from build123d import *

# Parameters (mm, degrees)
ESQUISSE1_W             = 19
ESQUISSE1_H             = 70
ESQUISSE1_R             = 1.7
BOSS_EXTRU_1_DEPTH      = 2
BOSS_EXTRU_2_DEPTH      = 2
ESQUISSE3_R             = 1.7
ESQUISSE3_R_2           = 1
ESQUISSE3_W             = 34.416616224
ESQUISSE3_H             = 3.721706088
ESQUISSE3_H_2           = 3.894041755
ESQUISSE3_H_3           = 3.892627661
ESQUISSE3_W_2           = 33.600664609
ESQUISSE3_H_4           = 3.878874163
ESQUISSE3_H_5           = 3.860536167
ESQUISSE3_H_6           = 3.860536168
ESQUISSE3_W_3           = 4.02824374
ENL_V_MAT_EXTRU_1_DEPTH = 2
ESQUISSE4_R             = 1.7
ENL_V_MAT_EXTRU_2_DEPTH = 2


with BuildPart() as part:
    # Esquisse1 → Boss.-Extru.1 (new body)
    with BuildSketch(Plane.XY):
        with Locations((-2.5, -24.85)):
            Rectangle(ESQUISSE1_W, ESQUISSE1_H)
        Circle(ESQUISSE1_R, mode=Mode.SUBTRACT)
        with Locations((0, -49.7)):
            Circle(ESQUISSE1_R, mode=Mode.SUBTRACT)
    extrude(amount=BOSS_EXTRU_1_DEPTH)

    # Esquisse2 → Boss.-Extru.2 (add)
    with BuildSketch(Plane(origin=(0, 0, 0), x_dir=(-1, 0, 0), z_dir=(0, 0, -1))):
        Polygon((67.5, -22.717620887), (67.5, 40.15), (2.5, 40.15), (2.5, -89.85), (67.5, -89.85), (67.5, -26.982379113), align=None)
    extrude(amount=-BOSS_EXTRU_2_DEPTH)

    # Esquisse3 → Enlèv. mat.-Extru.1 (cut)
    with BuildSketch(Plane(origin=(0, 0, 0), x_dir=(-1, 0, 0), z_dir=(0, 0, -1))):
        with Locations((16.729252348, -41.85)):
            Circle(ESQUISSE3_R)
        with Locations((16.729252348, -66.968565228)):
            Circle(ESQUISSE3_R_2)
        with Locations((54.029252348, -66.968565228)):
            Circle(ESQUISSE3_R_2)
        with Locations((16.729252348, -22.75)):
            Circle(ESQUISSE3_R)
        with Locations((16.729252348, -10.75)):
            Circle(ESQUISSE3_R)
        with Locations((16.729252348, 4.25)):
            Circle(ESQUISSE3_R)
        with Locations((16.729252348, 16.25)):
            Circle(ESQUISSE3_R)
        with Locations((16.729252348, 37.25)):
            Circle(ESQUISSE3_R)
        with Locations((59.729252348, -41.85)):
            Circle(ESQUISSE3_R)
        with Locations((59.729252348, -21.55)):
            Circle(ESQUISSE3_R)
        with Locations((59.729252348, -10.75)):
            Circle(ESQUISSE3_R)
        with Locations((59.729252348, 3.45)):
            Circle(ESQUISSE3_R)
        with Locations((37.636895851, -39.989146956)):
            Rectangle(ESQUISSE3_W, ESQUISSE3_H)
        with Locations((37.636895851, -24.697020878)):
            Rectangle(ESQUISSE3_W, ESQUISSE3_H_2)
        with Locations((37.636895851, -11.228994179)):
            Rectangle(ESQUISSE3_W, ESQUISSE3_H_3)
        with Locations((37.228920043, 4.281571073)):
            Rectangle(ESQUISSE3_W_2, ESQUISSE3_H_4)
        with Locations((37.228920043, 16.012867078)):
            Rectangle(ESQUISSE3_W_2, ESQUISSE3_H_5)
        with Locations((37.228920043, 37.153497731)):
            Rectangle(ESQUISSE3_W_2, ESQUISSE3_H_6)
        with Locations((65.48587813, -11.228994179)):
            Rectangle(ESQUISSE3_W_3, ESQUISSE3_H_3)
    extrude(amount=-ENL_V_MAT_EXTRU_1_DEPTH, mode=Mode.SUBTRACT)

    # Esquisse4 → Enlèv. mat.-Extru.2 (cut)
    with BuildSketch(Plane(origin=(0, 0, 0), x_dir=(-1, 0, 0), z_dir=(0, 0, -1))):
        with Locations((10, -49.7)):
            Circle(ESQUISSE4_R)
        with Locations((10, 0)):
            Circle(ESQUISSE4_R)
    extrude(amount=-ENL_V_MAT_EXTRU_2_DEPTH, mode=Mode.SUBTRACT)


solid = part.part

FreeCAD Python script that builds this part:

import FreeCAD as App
import Part
import Sketcher

V = App.Vector

doc = App.newDocument("Part")
body = doc.addObject("PartDesign::Body", "Body")

sketch1 = body.newObject("Sketcher::SketchObject", "Sketch")
sketch1.AttachmentSupport = (doc.getObject("XY_Plane"), [""])
sketch1.MapMode = "FlatFace"
sketch1.addGeometry([
    Part.LineSegment(V(-12, 10.2, 0), V(-12, -59.9, 0)),
    Part.LineSegment(V(-12, -59.9, 0), V(7, -59.9, 0)),
    Part.LineSegment(V(7, -59.9, 0), V(7, 10.2, 0)),
    Part.LineSegment(V(7, 10.2, 0), V(-12, 10.2, 0)),
    Part.Circle(V(0, -49.7, 0), V(0, 0, 1), 1.7),
    Part.Circle(V(0, 0, 0), V(0, 0, 1), 1.7),
], False)
sketch1.addConstraint([
    Sketcher.Constraint("Coincident", 0, 2, 1, 1),
    Sketcher.Constraint("Coincident", 1, 2, 2, 1),
    Sketcher.Constraint("Coincident", 2, 2, 3, 1),
    Sketcher.Constraint("Coincident", 3, 2, 0, 1),
    Sketcher.Constraint("Vertical", 0),
    Sketcher.Constraint("Horizontal", 1),
    Sketcher.Constraint("Vertical", 2),
    Sketcher.Constraint("Horizontal", 3),
    Sketcher.Constraint("Coincident", 5, 3, -1, 1),
    Sketcher.Constraint("Equal", 4, 5),
    Sketcher.Constraint("PointOnObject", 4, 3, -2),
    Sketcher.Constraint("Diameter", 4, 3.4),
    Sketcher.Constraint("DistanceX", 1, 1, 1, 2, 19.0),
    Sketcher.Constraint("DistanceY", 0, 2, 0, 1, 70.0),
    Sketcher.Constraint("DistanceX", 0, 2, -1, 1, 12.0),
    Sketcher.Constraint("DistanceY", 4, 3, -1, 1, 49.7),
    Sketcher.Constraint("DistanceY", 0, 2, -1, 1, 59.85),
])
pad1 = body.newObject("PartDesign::Pad", "Pad")
pad1.Profile = sketch1
pad1.Length = 2

sketch2 = body.newObject("Sketcher::SketchObject", "Sketch001")
sketch2.AttachmentSupport = (doc.getObject("XY_Plane"), [""])
sketch2.MapMode = "FlatFace"
sketch2.addGeometry([
    Part.LineSegment(V(-68, 40, 0), V(-2, 40, 0)),
    Part.LineSegment(V(-2, 40, 0), V(-2, -90, 0)),
    Part.LineSegment(V(-2, -90, 0), V(-68, -90, 0)),
    Part.LineSegment(V(-68, -90, 0), V(-68, 40, 0)),
], False)
sketch2.addConstraint([
    Sketcher.Constraint("Coincident", 0, 2, 1, 1),
    Sketcher.Constraint("Coincident", 1, 2, 2, 1),
    Sketcher.Constraint("Coincident", 2, 2, 3, 1),
    Sketcher.Constraint("Coincident", 3, 2, 0, 1),
    Sketcher.Constraint("Horizontal", 0),
    Sketcher.Constraint("Vertical", 1),
    Sketcher.Constraint("Horizontal", 2),
    Sketcher.Constraint("Vertical", 3),
    Sketcher.Constraint("DistanceX", 0, 1, 0, 2, 65.0),
    Sketcher.Constraint("DistanceY", 1, 2, 1, 1, 130.0),
    Sketcher.Constraint("DistanceX", 0, 2, -1, 1, 2.5),
    Sketcher.Constraint("DistanceY", -1, 1, 0, 2, 40.15),
])
pad2 = body.newObject("PartDesign::Pad", "Pad001")
pad2.Profile = sketch2
pad2.Length = 2

sketch3 = body.newObject("Sketcher::SketchObject", "Sketch002")
sketch3.AttachmentSupport = (doc.getObject("XY_Plane"), [""])
sketch3.MapMode = "FlatFace"
sketch3.addGeometry([
    Part.Circle(V(-16.7, -41.9, 0), V(0, 0, 1), 1.7),
    Part.Circle(V(-16.7, -67, 0), V(0, 0, 1), 1),
    Part.Circle(V(-54, -67, 0), V(0, 0, 1), 1),
    Part.Circle(V(-16.7, -22.8, 0), V(0, 0, 1), 1.7),
    Part.Circle(V(-16.7, -10.8, 0), V(0, 0, 1), 1.7),
    Part.Circle(V(-16.7, 4.2, 0), V(0, 0, 1), 1.7),
    Part.Circle(V(-16.7, 16.2, 0), V(0, 0, 1), 1.7),
    Part.Circle(V(-16.7, 37.2, 0), V(0, 0, 1), 1.7),
    Part.Circle(V(-59.7, -41.9, 0), V(0, 0, 1), 1.7),
    Part.Circle(V(-59.7, -21.6, 0), V(0, 0, 1), 1.7),
    Part.Circle(V(-59.7, -10.8, 0), V(0, 0, 1), 1.7),
    Part.Circle(V(-59.7, 3.5, 0), V(0, 0, 1), 1.7),
    Part.LineSegment(V(-20.4, -38.1, 0), V(-20.4, -41.9, 0)),
    Part.LineSegment(V(-20.4, -41.9, 0), V(-54.8, -41.9, 0)),
    Part.LineSegment(V(-54.8, -41.9, 0), V(-54.8, -38.1, 0)),
    Part.LineSegment(V(-54.8, -38.1, 0), V(-20.4, -38.1, 0)),
    Part.LineSegment(V(-20.4, -22.8, 0), V(-20.4, -26.6, 0)),
    Part.LineSegment(V(-20.4, -26.6, 0), V(-54.8, -26.6, 0)),
    Part.LineSegment(V(-54.8, -26.6, 0), V(-54.8, -22.8, 0)),
    Part.LineSegment(V(-54.8, -22.8, 0), V(-20.4, -22.8, 0)),
    Part.LineSegment(V(-20.4, -9.3, 0), V(-20.4, -13.2, 0)),
    Part.LineSegment(V(-20.4, -13.2, 0), V(-54.8, -13.2, 0)),
    Part.LineSegment(V(-54.8, -13.2, 0), V(-54.8, -9.3, 0)),
    Part.LineSegment(V(-54.8, -9.3, 0), V(-20.4, -9.3, 0)),
    Part.LineSegment(V(-20.4, 6.2, 0), V(-20.4, 2.3, 0)),
    Part.LineSegment(V(-20.4, 2.3, 0), V(-54, 2.3, 0)),
    Part.LineSegment(V(-54, 2.3, 0), V(-54, 6.2, 0)),
    Part.LineSegment(V(-54, 6.2, 0), V(-20.4, 6.2, 0)),
    Part.LineSegment(V(-20.4, 17.9, 0), V(-20.4, 14.1, 0)),
    Part.LineSegment(V(-20.4, 14.1, 0), V(-54, 14.1, 0)),
    Part.LineSegment(V(-54, 14.1, 0), V(-54, 17.9, 0)),
    Part.LineSegment(V(-54, 17.9, 0), V(-20.4, 17.9, 0)),
    Part.LineSegment(V(-20.4, 39.1, 0), V(-20.4, 35.2, 0)),
    Part.LineSegment(V(-20.4, 35.2, 0), V(-54, 35.2, 0)),
    Part.LineSegment(V(-54, 35.2, 0), V(-54, 39.1, 0)),
    Part.LineSegment(V(-54, 39.1, 0), V(-20.4, 39.1, 0)),
    Part.LineSegment(V(-63.5, -9.3, 0), V(-63.5, -13.2, 0)),
    Part.LineSegment(V(-63.5, -13.2, 0), V(-67.5, -13.2, 0)),
    Part.LineSegment(V(-67.5, -13.2, 0), V(-67.5, -9.3, 0)),
    Part.LineSegment(V(-67.5, -9.3, 0), V(-63.5, -9.3, 0)),
], False)
sketch3.addConstraint([
    Sketcher.Constraint("Coincident", 12, 2, 13, 1),
    Sketcher.Constraint("Coincident", 13, 2, 14, 1),
    Sketcher.Constraint("Coincident", 14, 2, 15, 1),
    Sketcher.Constraint("Coincident", 15, 2, 12, 1),
    Sketcher.Constraint("Coincident", 16, 2, 17, 1),
    Sketcher.Constraint("Coincident", 17, 2, 18, 1),
    Sketcher.Constraint("Coincident", 18, 2, 19, 1),
    Sketcher.Constraint("Coincident", 19, 2, 16, 1),
    Sketcher.Constraint("Coincident", 20, 2, 21, 1),
    Sketcher.Constraint("Coincident", 21, 2, 22, 1),
    Sketcher.Constraint("Coincident", 22, 2, 23, 1),
    Sketcher.Constraint("Coincident", 23, 2, 20, 1),
    Sketcher.Constraint("Coincident", 24, 2, 25, 1),
    Sketcher.Constraint("Coincident", 25, 2, 26, 1),
    Sketcher.Constraint("Coincident", 26, 2, 27, 1),
    Sketcher.Constraint("Coincident", 27, 2, 24, 1),
    Sketcher.Constraint("Coincident", 28, 2, 29, 1),
    Sketcher.Constraint("Coincident", 29, 2, 30, 1),
    Sketcher.Constraint("Coincident", 30, 2, 31, 1),
    Sketcher.Constraint("Coincident", 31, 2, 28, 1),
    Sketcher.Constraint("Coincident", 32, 2, 33, 1),
    Sketcher.Constraint("Coincident", 33, 2, 34, 1),
    Sketcher.Constraint("Coincident", 34, 2, 35, 1),
    Sketcher.Constraint("Coincident", 35, 2, 32, 1),
    Sketcher.Constraint("Coincident", 36, 2, 37, 1),
    Sketcher.Constraint("Coincident", 37, 2, 38, 1),
    Sketcher.Constraint("Coincident", 38, 2, 39, 1),
    Sketcher.Constraint("Coincident", 39, 2, 36, 1),
    Sketcher.Constraint("Vertical", 12),
    Sketcher.Constraint("Horizontal", 13),
    Sketcher.Constraint("Vertical", 14),
    Sketcher.Constraint("Horizontal", 15),
    Sketcher.Constraint("Vertical", 16),
    Sketcher.Constraint("Horizontal", 17),
    Sketcher.Constraint("Vertical", 18),
    Sketcher.Constraint("Horizontal", 19),
    Sketcher.Constraint("Vertical", 20),
    Sketcher.Constraint("Horizontal", 21),
    Sketcher.Constraint("Vertical", 22),
    Sketcher.Constraint("Horizontal", 23),
    Sketcher.Constraint("Vertical", 24),
    Sketcher.Constraint("Horizontal", 25),
    Sketcher.Constraint("Vertical", 26),
    Sketcher.Constraint("Horizontal", 27),
    Sketcher.Constraint("Vertical", 28),
    Sketcher.Constraint("Horizontal", 29),
    Sketcher.Constraint("Vertical", 30),
    Sketcher.Constraint("Horizontal", 31),
    Sketcher.Constraint("Vertical", 32),
    Sketcher.Constraint("Horizontal", 33),
    Sketcher.Constraint("Vertical", 34),
    Sketcher.Constraint("Horizontal", 35),
    Sketcher.Constraint("Vertical", 36),
    Sketcher.Constraint("Horizontal", 37),
    Sketcher.Constraint("Vertical", 38),
    Sketcher.Constraint("Horizontal", 39),
    Sketcher.Constraint("Equal", 1, 2),
    Sketcher.Constraint("Equal", 0, 3),
    Sketcher.Constraint("Equal", 3, 4),
    Sketcher.Constraint("Equal", 4, 5),
    Sketcher.Constraint("Equal", 5, 6),
    Sketcher.Constraint("Equal", 6, 7),
    Sketcher.Constraint("Equal", 7, 8),
    Sketcher.Constraint("Equal", 8, 9),
    Sketcher.Constraint("Equal", 9, 10),
    Sketcher.Constraint("Equal", 10, 11),
    Sketcher.Constraint("Horizontal", 1, 3, 2, 3),
    Sketcher.Constraint("Horizontal", 0, 3, 8, 3),
    Sketcher.Constraint("Horizontal", 4, 3, 10, 3),
    Sketcher.Constraint("Horizontal", 8, 3, 12, 2),
    Sketcher.Constraint("Horizontal", 3, 3, 18, 2),
    Sketcher.Constraint("Horizontal", 21, 2, 36, 2),
    Sketcher.Constraint("Horizontal", 23, 2, 38, 2),
    Sketcher.Constraint("Vertical", 0, 3, 1, 3),
    Sketcher.Constraint("Vertical", 1, 3, 3, 3),
    Sketcher.Constraint("Vertical", 3, 3, 4, 3),
    Sketcher.Constraint("Vertical", 4, 3, 5, 3),
    Sketcher.Constraint("Vertical", 5, 3, 6, 3),
    Sketcher.Constraint("Vertical", 6, 3, 7, 3),
    Sketcher.Constraint("Vertical", 8, 3, 9, 3),
    Sketcher.Constraint("Vertical", 9, 3, 10, 3),
    Sketcher.Constraint("Vertical", 10, 3, 11, 3),
    Sketcher.Constraint("Vertical", 15, 2, 16, 2),
    Sketcher.Constraint("Vertical", 14, 2, 17, 2),
    Sketcher.Constraint("Vertical", 19, 2, 20, 2),
    Sketcher.Constraint("Vertical", 18, 2, 21, 2),
    Sketcher.Constraint("Vertical", 23, 2, 24, 2),
    Sketcher.Constraint("Vertical", 2, 3, 25, 2),
    Sketcher.Constraint("Vertical", 27, 2, 28, 2),
    Sketcher.Constraint("Vertical", 26, 2, 29, 2),
    Sketcher.Constraint("Vertical", 31, 2, 32, 2),
    Sketcher.Constraint("Vertical", 30, 2, 33, 2),
    Sketcher.Constraint("Equal", 30, 32),
    Sketcher.Constraint("Diameter", 1, 2.0),
    Sketcher.Constraint("Diameter", 0, 3.4),
    Sketcher.Constraint("DistanceY", 3, 3, 4, 3, 12.0),
    Sketcher.Constraint("DistanceY", 4, 3, 5, 3, 15.0),
    Sketcher.Constraint("DistanceY", 5, 3, 6, 3, 12.0),
    Sketcher.Constraint("DistanceY", 6, 3, 7, 3, 21.0),
    Sketcher.Constraint("DistanceX", 8, 3, 0, 3, 43.0),
    Sketcher.Constraint("DistanceY", 9, 3, 11, 3, 25.0),
    Sketcher.Constraint("DistanceX", 37, 2, -1, 1, 67.5),
    Sketcher.Constraint("DistanceX", 2, 3, 1, 3, 37.3),
    Sketcher.Constraint("DistanceY", 0, 3, 3, 3, 19.1),
    Sketcher.Constraint("DistanceY", 8, 3, 9, 3, 20.3),
    Sketcher.Constraint("DistanceY", 0, 3, -1, 1, 41.85),
    Sketcher.Constraint("DistanceY", 25, 2, 30, 2, 15.601001),
    Sketcher.Constraint("DistanceY", 16, 2, 16, 1, 3.894042),
    Sketcher.Constraint("DistanceY", -1, 1, 28, 2, 14.082599),
    Sketcher.Constraint("DistanceX", 13, 2, 13, 1, 34.416616),
    Sketcher.Constraint("DistanceX", 25, 2, 25, 1, 33.600665),
    Sketcher.Constraint("DistanceX", 37, 2, 37, 1, 4.028244),
    Sketcher.Constraint("DistanceY", 12, 2, 12, 1, 3.721706),
    Sketcher.Constraint("DistanceY", 20, 2, 20, 1, 3.892628),
    Sketcher.Constraint("DistanceY", 24, 2, 24, 1, 3.878874),
    Sketcher.Constraint("DistanceY", 28, 2, 28, 1, 3.860536),
    Sketcher.Constraint("DistanceY", 20, 2, -1, 1, 13.175308),
    Sketcher.Constraint("DistanceY", -1, 1, 32, 2, 35.22323),
    Sketcher.Constraint("DistanceY", 2, 3, 14, 2, 28.840271),
    Sketcher.Constraint("DistanceX", 0, 3, -1, 1, 16.729252),
])
pocket1 = body.newObject("PartDesign::Pocket", "Pocket")
pocket1.Profile = sketch3
pocket1.Length = 2
pocket1.Reversed = True

sketch4 = body.newObject("Sketcher::SketchObject", "Sketch003")
sketch4.AttachmentSupport = (doc.getObject("XY_Plane"), [""])
sketch4.MapMode = "FlatFace"
sketch4.addGeometry([
    Part.Circle(V(-10, -49.7, 0), V(0, 0, 1), 1.7),
    Part.Circle(V(-10, 0, 0), V(0, 0, 1), 1.7),
], False)
sketch4.addConstraint([
    Sketcher.Constraint("Equal", 0, 1),
    Sketcher.Constraint("PointOnObject", 1, 3, -1),
    Sketcher.Constraint("Vertical", 0, 3, 1, 3),
    Sketcher.Constraint("Diameter", 0, 3.4),
    Sketcher.Constraint("DistanceX", 0, 3, -1, 1, 10.0),
    Sketcher.Constraint("DistanceY", 0, 3, -1, 1, 49.7),
])
pocket2 = body.newObject("PartDesign::Pocket", "Pocket001")
pocket2.Profile = sketch4
pocket2.Length = 2
pocket2.Reversed = True

doc.recompute()
